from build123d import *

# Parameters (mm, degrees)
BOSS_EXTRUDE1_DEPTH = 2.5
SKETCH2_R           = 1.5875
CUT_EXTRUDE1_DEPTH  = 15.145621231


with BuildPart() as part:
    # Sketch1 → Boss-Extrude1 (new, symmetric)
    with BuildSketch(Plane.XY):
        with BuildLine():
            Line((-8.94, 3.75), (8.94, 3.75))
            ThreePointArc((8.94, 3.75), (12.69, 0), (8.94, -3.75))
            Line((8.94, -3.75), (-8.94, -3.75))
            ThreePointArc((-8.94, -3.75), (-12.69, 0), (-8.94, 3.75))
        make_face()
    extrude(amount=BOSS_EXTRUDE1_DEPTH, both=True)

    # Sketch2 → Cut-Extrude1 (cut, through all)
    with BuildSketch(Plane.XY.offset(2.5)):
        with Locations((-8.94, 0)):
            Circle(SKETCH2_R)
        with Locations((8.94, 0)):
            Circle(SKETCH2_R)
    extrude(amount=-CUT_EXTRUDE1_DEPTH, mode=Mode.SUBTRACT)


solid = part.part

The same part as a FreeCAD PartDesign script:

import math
import FreeCAD as App
import Part
import Sketcher
from FreeCAD import Vector

doc = App.newDocument("Part")
body = doc.addObject("PartDesign::Body", "Body")

sketch1 = body.newObject("Sketcher::SketchObject", "Sketch")
sketch1.AttachmentSupport = (doc.getObject("XY_Plane"), [""])
sketch1.MapMode = "FlatFace"
sketch1.addGeometry([
    Part.LineSegment(Vector(8.9, 3.8, 0), Vector(-8.9, 3.8, 0)),
    Part.ArcOfCircle(Part.Circle(Vector(-8.9, 0, 0), Vector(0, 0, 1), 3.8), math.radians(90), math.radians(270)),
    Part.LineSegment(Vector(-8.9, -3.8, 0), Vector(8.9, -3.8, 0)),
    Part.ArcOfCircle(Part.Circle(Vector(8.9, 0, 0), Vector(0, 0, 1), 3.8), math.radians(-90), math.radians(90)),
], False)
sketch1.addConstraint([
    Sketcher.Constraint("Tangent", 0, 2, 1, 1),
    Sketcher.Constraint("Tangent", 1, 2, 2, 1),
    Sketcher.Constraint("Tangent", 2, 2, 3, 1),
    Sketcher.Constraint("Tangent", 3, 2, 0, 1),
    Sketcher.Constraint("Horizontal", 0),
    Sketcher.Constraint("Horizontal", 2),
    Sketcher.Constraint("Symmetric", 1, 3, 3, 3, -1, 1),
    Sketcher.Constraint("Radius", 1, 3.75),
    Sketcher.Constraint("DistanceX", 0, 2, 0, 1, 17.88),
])
pad1 = body.newObject("PartDesign::Pad", "Pad")
pad1.Profile = sketch1
pad1.Length = 5
pad1.Midplane = True

sketch2 = body.newObject("Sketcher::SketchObject", "Sketch001")
sketch2.AttachmentSupport = (doc.getObject("XY_Plane"), [""])
sketch2.MapMode = "FlatFace"
sketch2.AttachmentOffset = App.Placement(Vector(0, 0, 2.5), App.Rotation())
sketch2.addGeometry([
    Part.Circle(Vector(-8.9, 0, 0), Vector(0, 0, 1), 1.6),
    Part.Circle(Vector(8.9, 0, 0), Vector(0, 0, 1), 1.6),
], False)
sketch2.addConstraint([
    Sketcher.Constraint("Equal", 0, 1),
    Sketcher.Constraint("Symmetric", 0, 3, 1, 3, -1, 1),
    Sketcher.Constraint("PointOnObject", 0, 3, -1),
    Sketcher.Constraint("Diameter", 0, 3.175),
    Sketcher.Constraint("DistanceX", 0, 3, -1, 1, 8.94),
])
pocket1 = body.newObject("PartDesign::Pocket", "Pocket")
pocket1.Profile = sketch2
pocket1.Type = "ThroughAll"

doc.recompute()
